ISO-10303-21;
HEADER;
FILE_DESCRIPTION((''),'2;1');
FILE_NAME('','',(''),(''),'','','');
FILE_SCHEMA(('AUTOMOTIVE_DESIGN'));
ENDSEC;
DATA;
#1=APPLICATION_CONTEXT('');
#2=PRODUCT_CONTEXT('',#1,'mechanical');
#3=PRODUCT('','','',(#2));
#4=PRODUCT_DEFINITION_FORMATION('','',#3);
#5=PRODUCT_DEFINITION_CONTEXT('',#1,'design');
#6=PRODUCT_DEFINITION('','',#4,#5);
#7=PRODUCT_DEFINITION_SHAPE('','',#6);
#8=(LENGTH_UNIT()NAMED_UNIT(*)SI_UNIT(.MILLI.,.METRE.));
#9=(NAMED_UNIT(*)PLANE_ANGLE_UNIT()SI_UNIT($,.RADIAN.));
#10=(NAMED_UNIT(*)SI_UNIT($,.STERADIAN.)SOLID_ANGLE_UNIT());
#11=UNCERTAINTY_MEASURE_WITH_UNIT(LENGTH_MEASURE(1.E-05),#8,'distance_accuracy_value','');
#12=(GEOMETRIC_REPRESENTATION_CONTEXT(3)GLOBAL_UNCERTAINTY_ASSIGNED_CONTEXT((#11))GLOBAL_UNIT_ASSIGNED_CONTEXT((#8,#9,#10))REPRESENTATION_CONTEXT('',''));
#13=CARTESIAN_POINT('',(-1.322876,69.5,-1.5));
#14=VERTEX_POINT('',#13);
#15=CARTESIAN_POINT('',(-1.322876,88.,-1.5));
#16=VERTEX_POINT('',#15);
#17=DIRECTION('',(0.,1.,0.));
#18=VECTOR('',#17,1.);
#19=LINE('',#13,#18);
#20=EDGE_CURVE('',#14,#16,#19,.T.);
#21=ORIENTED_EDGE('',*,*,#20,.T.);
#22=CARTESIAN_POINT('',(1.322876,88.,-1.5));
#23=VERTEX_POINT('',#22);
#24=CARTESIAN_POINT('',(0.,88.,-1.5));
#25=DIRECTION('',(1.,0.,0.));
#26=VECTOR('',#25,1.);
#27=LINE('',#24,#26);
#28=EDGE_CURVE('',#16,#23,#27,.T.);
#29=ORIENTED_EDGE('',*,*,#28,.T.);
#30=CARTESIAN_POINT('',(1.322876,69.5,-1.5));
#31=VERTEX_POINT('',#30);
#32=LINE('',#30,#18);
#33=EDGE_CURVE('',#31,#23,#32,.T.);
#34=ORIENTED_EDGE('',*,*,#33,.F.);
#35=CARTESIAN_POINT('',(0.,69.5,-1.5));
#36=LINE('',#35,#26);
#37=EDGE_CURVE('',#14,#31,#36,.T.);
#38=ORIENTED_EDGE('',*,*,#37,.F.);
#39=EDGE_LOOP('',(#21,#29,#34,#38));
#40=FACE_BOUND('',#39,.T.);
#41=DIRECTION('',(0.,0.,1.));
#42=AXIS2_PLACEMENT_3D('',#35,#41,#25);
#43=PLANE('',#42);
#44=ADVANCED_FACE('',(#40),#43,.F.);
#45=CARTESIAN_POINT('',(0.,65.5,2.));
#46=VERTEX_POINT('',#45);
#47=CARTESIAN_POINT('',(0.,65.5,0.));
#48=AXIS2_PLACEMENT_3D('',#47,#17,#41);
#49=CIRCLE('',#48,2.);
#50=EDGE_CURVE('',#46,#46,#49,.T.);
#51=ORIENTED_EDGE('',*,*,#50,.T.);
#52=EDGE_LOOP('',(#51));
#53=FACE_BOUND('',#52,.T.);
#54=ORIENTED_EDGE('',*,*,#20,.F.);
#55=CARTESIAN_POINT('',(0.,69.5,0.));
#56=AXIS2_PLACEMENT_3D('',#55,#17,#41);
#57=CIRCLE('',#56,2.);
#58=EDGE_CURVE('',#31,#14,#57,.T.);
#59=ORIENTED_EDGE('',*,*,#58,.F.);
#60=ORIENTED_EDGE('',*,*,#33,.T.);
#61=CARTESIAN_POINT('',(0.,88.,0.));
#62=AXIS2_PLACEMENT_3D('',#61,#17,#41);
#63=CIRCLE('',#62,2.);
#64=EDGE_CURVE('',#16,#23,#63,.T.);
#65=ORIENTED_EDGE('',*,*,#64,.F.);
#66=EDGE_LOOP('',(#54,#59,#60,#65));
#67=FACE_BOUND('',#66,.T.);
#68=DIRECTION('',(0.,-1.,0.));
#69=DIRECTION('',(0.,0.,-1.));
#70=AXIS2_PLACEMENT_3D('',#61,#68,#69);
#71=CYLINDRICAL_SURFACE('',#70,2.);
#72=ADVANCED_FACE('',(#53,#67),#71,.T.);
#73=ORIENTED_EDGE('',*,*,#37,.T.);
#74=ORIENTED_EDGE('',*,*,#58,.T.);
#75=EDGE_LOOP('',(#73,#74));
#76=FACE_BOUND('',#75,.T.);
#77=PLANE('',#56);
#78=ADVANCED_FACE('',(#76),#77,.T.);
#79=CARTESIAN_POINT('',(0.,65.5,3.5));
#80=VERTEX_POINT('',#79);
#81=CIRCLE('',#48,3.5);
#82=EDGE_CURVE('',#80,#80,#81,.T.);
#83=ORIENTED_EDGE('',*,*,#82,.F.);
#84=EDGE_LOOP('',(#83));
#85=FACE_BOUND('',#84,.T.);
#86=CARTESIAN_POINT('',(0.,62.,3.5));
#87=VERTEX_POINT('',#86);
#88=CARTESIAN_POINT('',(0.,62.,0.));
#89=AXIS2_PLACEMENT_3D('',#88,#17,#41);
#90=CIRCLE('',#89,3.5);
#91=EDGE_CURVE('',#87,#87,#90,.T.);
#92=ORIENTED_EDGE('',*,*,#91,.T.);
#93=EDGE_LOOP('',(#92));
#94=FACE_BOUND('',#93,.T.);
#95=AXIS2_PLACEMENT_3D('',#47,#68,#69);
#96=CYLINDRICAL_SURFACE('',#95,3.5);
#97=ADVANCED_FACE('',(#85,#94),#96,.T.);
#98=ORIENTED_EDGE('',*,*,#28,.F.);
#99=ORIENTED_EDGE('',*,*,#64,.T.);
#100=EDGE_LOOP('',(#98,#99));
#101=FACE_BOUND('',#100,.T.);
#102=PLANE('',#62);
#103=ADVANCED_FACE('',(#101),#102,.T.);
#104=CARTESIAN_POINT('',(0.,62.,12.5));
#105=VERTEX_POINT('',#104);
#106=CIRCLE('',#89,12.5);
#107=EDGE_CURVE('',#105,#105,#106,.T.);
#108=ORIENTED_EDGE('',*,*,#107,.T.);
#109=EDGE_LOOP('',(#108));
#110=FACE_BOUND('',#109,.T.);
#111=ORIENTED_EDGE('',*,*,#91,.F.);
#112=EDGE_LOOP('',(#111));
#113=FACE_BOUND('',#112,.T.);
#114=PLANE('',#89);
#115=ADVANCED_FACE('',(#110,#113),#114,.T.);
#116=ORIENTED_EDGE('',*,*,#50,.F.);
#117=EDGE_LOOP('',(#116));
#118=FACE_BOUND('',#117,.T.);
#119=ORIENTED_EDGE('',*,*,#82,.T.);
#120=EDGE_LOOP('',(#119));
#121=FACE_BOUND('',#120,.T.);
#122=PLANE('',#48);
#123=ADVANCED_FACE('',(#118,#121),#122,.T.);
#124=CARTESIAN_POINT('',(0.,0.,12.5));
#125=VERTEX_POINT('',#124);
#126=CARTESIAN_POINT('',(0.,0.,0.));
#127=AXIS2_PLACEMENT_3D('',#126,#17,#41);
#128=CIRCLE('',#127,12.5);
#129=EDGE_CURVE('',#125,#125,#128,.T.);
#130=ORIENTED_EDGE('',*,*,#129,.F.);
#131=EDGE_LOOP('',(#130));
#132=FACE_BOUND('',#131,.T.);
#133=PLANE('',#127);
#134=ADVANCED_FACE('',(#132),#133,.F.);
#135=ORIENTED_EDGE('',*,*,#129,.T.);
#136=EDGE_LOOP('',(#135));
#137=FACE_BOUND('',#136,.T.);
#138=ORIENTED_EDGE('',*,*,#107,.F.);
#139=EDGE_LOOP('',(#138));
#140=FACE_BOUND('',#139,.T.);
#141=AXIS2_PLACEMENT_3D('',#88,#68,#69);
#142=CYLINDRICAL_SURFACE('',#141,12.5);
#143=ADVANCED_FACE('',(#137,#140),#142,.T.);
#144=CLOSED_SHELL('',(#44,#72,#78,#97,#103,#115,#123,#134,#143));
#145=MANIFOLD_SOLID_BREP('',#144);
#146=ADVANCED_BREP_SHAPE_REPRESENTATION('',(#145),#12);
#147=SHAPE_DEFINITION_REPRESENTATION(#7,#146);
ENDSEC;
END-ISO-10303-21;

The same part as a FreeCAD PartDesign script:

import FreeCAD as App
import Part
import Sketcher

V = App.Vector
Q = App.Units.Quantity


def add_polygon(sketch, points):
    """Adds a closed chain of lines whose ends are joined by coincident constraints."""
    first, n = sketch.GeometryCount, len(points)
    for a, b in zip(points, points[1:] + points[:1]):
        sketch.addGeometry(Part.LineSegment(App.Vector(*a, 0), App.Vector(*b, 0)), False)
    for i in range(n):
        sketch.addConstraint(Sketcher.Constraint("Coincident", first + i, 2, first + (i + 1) % n, 1))

doc = App.newDocument("Part")
body = doc.addObject("PartDesign::Body", "Body")

# Sketch on XZ plane
sketch1 = body.newObject("Sketcher::SketchObject", "Sketch")
sketch1.AttachmentSupport = (doc.getObject("XZ_Plane"), [""])
sketch1.MapMode = "FlatFace"
sketch1.addGeometry(Part.Circle(V(0, 0, 0), V(0, 0, 1), 12), False)
sketch1.addConstraint(Sketcher.Constraint("Coincident", 0, 3, -1, 1))
sketch1.addConstraint(Sketcher.Constraint("Diameter", 0, Q("25 mm")))
pad1 = body.newObject("PartDesign::Pad", "Pad")
pad1.Profile = sketch1
pad1.Length = 62
pad1.Reversed = True

# Sketch on XZ plane
sketch2 = body.newObject("Sketcher::SketchObject", "Sketch001")
sketch2.AttachmentSupport = (doc.getObject("XZ_Plane"), [""])
sketch2.MapMode = "FlatFace"
sketch2.AttachmentOffset = App.Placement(V(0, 0, -62), App.Rotation())
sketch2.addGeometry(Part.Circle(V(0, 0, 0), V(0, 0, 1), 3.5), False)
sketch2.addConstraint(Sketcher.Constraint("Coincident", 0, 3, -1, 1))
sketch2.addConstraint(Sketcher.Constraint("Diameter", 0, Q("7 mm")))
pad2 = body.newObject("PartDesign::Pad", "Pad001")
pad2.Profile = sketch2
pad2.Length = 3.5
pad2.Reversed = True

# Sketch on XZ plane
sketch3 = body.newObject("Sketcher::SketchObject", "Sketch002")
sketch3.AttachmentSupport = (doc.getObject("XZ_Plane"), [""])
sketch3.MapMode = "FlatFace"
sketch3.AttachmentOffset = App.Placement(V(0, 0, -65.5), App.Rotation())
sketch3.addGeometry(Part.Circle(V(0, 0, 0), V(0, 0, 1), 2), False)
sketch3.addConstraint(Sketcher.Constraint("Coincident", 0, 3, -1, 1))
sketch3.addConstraint(Sketcher.Constraint("Diameter", 0, Q("4 mm")))
pad3 = body.newObject("PartDesign::Pad", "Pad002")
pad3.Profile = sketch3
pad3.Length = 22.5
pad3.Reversed = True

# Sketch on XZ plane
sketch4 = body.newObject("Sketcher::SketchObject", "Sketch003")
sketch4.AttachmentSupport = (doc.getObject("XZ_Plane"), [""])
sketch4.MapMode = "FlatFace"
sketch4.AttachmentOffset = App.Placement(V(0, 0, -88), App.Rotation())
add_polygon(sketch4, [(-51, -2), (51, -2), (51, -100), (-51, -100)])  # lines 0-3
sketch4.addConstraint(Sketcher.Constraint("Horizontal", 0))
sketch4.addConstraint(Sketcher.Constraint("Vertical", 1))
sketch4.addConstraint(Sketcher.Constraint("Horizontal", 2))
sketch4.addConstraint(Sketcher.Constraint("Vertical", 3))
sketch4.addConstraint(Sketcher.Constraint("DistanceY", 0, 2, -1, 1, Q("1.5 mm")))
sketch4.addConstraint(Sketcher.Constraint("DistanceY", 1, 2, 1, 1, Q("98.696571 mm")))
sketch4.addConstraint(Sketcher.Constraint("DistanceX", 0, 1, 0, 2, Q("101.342322 mm")))
sketch4.addConstraint(Sketcher.Constraint("DistanceX", -1, 1, 0, 2, Q("50.671161 mm")))
pocket1 = body.newObject("PartDesign::Pocket", "Pocket")
pocket1.Profile = sketch4
pocket1.Length = 18.5
pocket1.Reversed = True

doc.recompute()
